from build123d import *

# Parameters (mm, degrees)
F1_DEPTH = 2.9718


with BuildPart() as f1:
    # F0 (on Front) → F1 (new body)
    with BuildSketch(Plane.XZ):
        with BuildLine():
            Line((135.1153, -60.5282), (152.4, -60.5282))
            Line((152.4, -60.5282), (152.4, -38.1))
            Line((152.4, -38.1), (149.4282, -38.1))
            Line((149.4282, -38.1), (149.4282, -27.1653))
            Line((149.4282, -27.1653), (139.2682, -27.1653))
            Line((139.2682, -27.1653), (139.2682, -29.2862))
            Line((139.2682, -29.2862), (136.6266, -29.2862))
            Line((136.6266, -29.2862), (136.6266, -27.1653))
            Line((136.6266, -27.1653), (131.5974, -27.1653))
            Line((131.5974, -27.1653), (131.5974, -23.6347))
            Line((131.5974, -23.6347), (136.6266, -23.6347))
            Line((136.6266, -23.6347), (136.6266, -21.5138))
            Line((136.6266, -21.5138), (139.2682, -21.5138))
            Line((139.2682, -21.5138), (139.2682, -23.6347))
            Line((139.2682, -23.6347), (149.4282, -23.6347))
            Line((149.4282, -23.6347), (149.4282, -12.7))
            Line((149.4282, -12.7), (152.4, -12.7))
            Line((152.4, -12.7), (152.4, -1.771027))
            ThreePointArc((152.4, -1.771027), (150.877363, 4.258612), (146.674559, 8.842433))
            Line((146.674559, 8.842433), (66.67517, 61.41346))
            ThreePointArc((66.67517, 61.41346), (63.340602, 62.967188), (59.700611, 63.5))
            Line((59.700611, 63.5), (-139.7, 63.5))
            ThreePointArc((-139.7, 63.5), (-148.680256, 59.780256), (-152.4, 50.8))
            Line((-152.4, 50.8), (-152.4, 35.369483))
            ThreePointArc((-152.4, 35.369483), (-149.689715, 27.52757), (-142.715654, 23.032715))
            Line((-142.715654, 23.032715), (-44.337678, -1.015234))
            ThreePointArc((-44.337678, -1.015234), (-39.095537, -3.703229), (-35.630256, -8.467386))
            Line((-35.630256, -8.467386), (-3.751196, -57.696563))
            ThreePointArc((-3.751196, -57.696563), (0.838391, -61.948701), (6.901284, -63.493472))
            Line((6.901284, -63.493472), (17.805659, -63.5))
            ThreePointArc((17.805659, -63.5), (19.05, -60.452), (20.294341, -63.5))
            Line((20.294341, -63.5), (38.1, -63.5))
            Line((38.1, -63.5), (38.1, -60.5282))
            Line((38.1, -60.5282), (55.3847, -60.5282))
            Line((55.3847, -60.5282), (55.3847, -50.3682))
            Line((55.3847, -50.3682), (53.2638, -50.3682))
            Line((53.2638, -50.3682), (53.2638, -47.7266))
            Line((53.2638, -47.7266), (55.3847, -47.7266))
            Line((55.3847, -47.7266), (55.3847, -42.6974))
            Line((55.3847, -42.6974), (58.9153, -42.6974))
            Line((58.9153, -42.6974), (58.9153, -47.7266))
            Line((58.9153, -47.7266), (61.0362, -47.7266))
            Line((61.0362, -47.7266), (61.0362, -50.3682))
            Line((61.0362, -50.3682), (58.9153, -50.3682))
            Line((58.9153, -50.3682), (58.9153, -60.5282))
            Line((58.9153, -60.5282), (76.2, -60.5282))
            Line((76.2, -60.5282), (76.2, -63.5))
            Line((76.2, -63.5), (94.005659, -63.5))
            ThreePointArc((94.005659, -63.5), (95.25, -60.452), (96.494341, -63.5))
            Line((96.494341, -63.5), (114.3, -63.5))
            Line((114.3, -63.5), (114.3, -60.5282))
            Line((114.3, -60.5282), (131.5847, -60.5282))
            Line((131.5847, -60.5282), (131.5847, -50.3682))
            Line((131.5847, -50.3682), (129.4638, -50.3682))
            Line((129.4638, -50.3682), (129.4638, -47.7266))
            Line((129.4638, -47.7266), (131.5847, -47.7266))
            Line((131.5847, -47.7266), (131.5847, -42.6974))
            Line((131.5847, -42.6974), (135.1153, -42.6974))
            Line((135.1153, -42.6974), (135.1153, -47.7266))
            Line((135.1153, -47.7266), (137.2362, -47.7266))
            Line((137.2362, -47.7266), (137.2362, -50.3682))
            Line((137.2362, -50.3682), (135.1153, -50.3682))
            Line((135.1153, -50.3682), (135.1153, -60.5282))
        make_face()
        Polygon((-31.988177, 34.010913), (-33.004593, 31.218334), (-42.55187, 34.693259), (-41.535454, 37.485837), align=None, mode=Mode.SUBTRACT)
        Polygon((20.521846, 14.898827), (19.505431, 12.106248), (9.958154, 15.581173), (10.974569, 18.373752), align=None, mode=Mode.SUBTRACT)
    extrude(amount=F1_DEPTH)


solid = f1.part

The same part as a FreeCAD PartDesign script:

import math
import FreeCAD as App
import Part
import Sketcher
from FreeCAD import Vector
Q = App.Units.Quantity


def add_polygon(sketch, points):
    """Adds a closed chain of lines whose ends are joined by coincident constraints."""
    first, n = sketch.GeometryCount, len(points)
    for a, b in zip(points, points[1:] + points[:1]):
        sketch.addGeometry(Part.LineSegment(App.Vector(*a, 0), App.Vector(*b, 0)), False)
    for i in range(n):
        sketch.addConstraint(Sketcher.Constraint("Coincident", first + i, 2, first + (i + 1) % n, 1))

doc = App.newDocument("Part")
body = doc.addObject("PartDesign::Body", "Body")

# Sketch on XZ plane
sketch1 = body.newObject("Sketcher::SketchObject", "Sketch")
sketch1.AttachmentSupport = (doc.getObject("XZ_Plane"), [""])
sketch1.MapMode = "FlatFace"
sketch1.addGeometry(Part.LineSegment(Vector(135.1153, -60.5282, 0), Vector(152.4, -60.5282, 0)), False)  # 0
sketch1.addGeometry(Part.LineSegment(Vector(152.4, -60.5282, 0), Vector(152.4, -38.1, 0)), False)  # 1
sketch1.addGeometry(Part.LineSegment(Vector(152.4, -38.1, 0), Vector(149.4282, -38.1, 0)), False)  # 2
sketch1.addGeometry(Part.LineSegment(Vector(149.4282, -38.1, 0), Vector(149.4282, -27.1653, 0)), False)  # 3
sketch1.addGeometry(Part.LineSegment(Vector(149.4282, -27.1653, 0), Vector(139.2682, -27.1653, 0)), False)  # 4
sketch1.addGeometry(Part.LineSegment(Vector(139.2682, -27.1653, 0), Vector(139.2682, -29.2862, 0)), False)  # 5
sketch1.addGeometry(Part.LineSegment(Vector(139.2682, -29.2862, 0), Vector(136.6266, -29.2862, 0)), False)  # 6
sketch1.addGeometry(Part.LineSegment(Vector(136.6266, -29.2862, 0), Vector(136.6266, -27.1653, 0)), False)  # 7
sketch1.addGeometry(Part.LineSegment(Vector(136.6266, -27.1653, 0), Vector(131.5974, -27.1653, 0)), False)  # 8
sketch1.addGeometry(Part.LineSegment(Vector(131.5974, -27.1653, 0), Vector(131.5974, -23.6347, 0)), False)  # 9
sketch1.addGeometry(Part.LineSegment(Vector(131.5974, -23.6347, 0), Vector(136.6266, -23.6347, 0)), False)  # 10
sketch1.addGeometry(Part.LineSegment(Vector(136.6266, -23.6347, 0), Vector(136.6266, -21.5138, 0)), False)  # 11
sketch1.addGeometry(Part.LineSegment(Vector(136.6266, -21.5138, 0), Vector(139.2682, -21.5138, 0)), False)  # 12
sketch1.addGeometry(Part.LineSegment(Vector(139.2682, -21.5138, 0), Vector(139.2682, -23.6347, 0)), False)  # 13
sketch1.addGeometry(Part.LineSegment(Vector(139.2682, -23.6347, 0), Vector(149.4282, -23.6347, 0)), False)  # 14
sketch1.addGeometry(Part.LineSegment(Vector(149.4282, -23.6347, 0), Vector(149.4282, -12.7, 0)), False)  # 15
sketch1.addGeometry(Part.LineSegment(Vector(149.4282, -12.7, 0), Vector(152.4, -12.7, 0)), False)  # 16
sketch1.addGeometry(Part.LineSegment(Vector(152.4, -12.7, 0), Vector(152.4, -1.771027, 0)), False)  # 17
sketch1.addGeometry(Part.ArcOfCircle(Part.Circle(Vector(139.699996, -1.771029, 0), Vector(0, 0, 1), 12.700004), math.radians(0.000008), math.radians(56.689361)), False)  # 18
sketch1.addGeometry(Part.LineSegment(Vector(146.674559, 8.842433, 0), Vector(66.67517, 61.41346, 0)), False)  # 19
sketch1.addGeometry(Part.ArcOfCircle(Part.Circle(Vector(59.70061, 50.799995, 0), Vector(0, 0, 1), 12.700005), math.radians(56.689379), math.radians(89.999996)), False)  # 20
sketch1.addGeometry(Part.LineSegment(Vector(59.700611, 63.5, 0), Vector(-139.7, 63.5, 0)), False)  # 21
sketch1.addGeometry(Part.ArcOfCircle(Part.Circle(Vector(-139.7, 50.8, 0), Vector(0, 0, 1), 12.7), math.radians(90.000002), math.radians(179.999998)), False)  # 22
sketch1.addGeometry(Part.LineSegment(Vector(-152.4, 50.8, 0), Vector(-152.4, 35.369483, 0)), False)  # 23
sketch1.addGeometry(Part.ArcOfCircle(Part.Circle(Vector(-139.699999, 35.369483, 0), Vector(0, 0, 1), 12.7), math.radians(179.999999), math.radians(256.263731)), False)  # 24
sketch1.addGeometry(Part.LineSegment(Vector(-142.715654, 23.032715, 0), Vector(-44.337678, -1.015234, 0)), False)  # 25
sketch1.addGeometry(Part.ArcOfCircle(Part.Circle(Vector(-47.353333, -13.352001, 0), Vector(0, 0, 1), 12.7), math.radians(22.619864), math.radians(76.263728)), False)  # 26
sketch1.addGeometry(Part.LineSegment(Vector(-35.630256, -8.467386, 0), Vector(-3.751196, -57.696563, 0)), False)  # 27
sketch1.addGeometry(Part.ArcOfCircle(Part.Circle(Vector(6.908886, -50.793475, 0), Vector(0, 0, 1), 12.699999), math.radians(-147.074351), math.radians(-90.034298)), False)  # 28
sketch1.addGeometry(Part.LineSegment(Vector(6.901284, -63.493472, 0), Vector(17.805659, -63.5, 0)), False)  # 29
sketch1.addGeometry(Part.ArcOfCircle(Part.Circle(Vector(19.05, -62.23, 0), Vector(0, 0, 1), 1.778), math.radians(-45.584685), math.radians(225.584685)), False)  # 30
sketch1.addGeometry(Part.LineSegment(Vector(20.294341, -63.5, 0), Vector(38.1, -63.5, 0)), False)  # 31
sketch1.addGeometry(Part.LineSegment(Vector(38.1, -63.5, 0), Vector(38.1, -60.5282, 0)), False)  # 32
sketch1.addGeometry(Part.LineSegment(Vector(38.1, -60.5282, 0), Vector(55.3847, -60.5282, 0)), False)  # 33
sketch1.addGeometry(Part.LineSegment(Vector(55.3847, -60.5282, 0), Vector(55.3847, -50.3682, 0)), False)  # 34
sketch1.addGeometry(Part.LineSegment(Vector(55.3847, -50.3682, 0), Vector(53.2638, -50.3682, 0)), False)  # 35
sketch1.addGeometry(Part.LineSegment(Vector(53.2638, -50.3682, 0), Vector(53.2638, -47.7266, 0)), False)  # 36
sketch1.addGeometry(Part.LineSegment(Vector(53.2638, -47.7266, 0), Vector(55.3847, -47.7266, 0)), False)  # 37
sketch1.addGeometry(Part.LineSegment(Vector(55.3847, -47.7266, 0), Vector(55.3847, -42.6974, 0)), False)  # 38
sketch1.addGeometry(Part.LineSegment(Vector(55.3847, -42.6974, 0), Vector(58.9153, -42.6974, 0)), False)  # 39
sketch1.addGeometry(Part.LineSegment(Vector(58.9153, -42.6974, 0), Vector(58.9153, -47.7266, 0)), False)  # 40
sketch1.addGeometry(Part.LineSegment(Vector(58.9153, -47.7266, 0), Vector(61.0362, -47.7266, 0)), False)  # 41
sketch1.addGeometry(Part.LineSegment(Vector(61.0362, -47.7266, 0), Vector(61.0362, -50.3682, 0)), False)  # 42
sketch1.addGeometry(Part.LineSegment(Vector(61.0362, -50.3682, 0), Vector(58.9153, -50.3682, 0)), False)  # 43
sketch1.addGeometry(Part.LineSegment(Vector(58.9153, -50.3682, 0), Vector(58.9153, -60.5282, 0)), False)  # 44
sketch1.addGeometry(Part.LineSegment(Vector(58.9153, -60.5282, 0), Vector(76.2, -60.5282, 0)), False)  # 45
sketch1.addGeometry(Part.LineSegment(Vector(76.2, -60.5282, 0), Vector(76.2, -63.5, 0)), False)  # 46
sketch1.addGeometry(Part.LineSegment(Vector(76.2, -63.5, 0), Vector(94.005659, -63.5, 0)), False)  # 47
sketch1.addGeometry(Part.ArcOfCircle(Part.Circle(Vector(95.25, -62.23, 0), Vector(0, 0, 1), 1.778), math.radians(-45.584685), math.radians(225.584685)), False)  # 48
sketch1.addGeometry(Part.LineSegment(Vector(96.494341, -63.5, 0), Vector(114.3, -63.5, 0)), False)  # 49
sketch1.addGeometry(Part.LineSegment(Vector(114.3, -63.5, 0), Vector(114.3, -60.5282, 0)), False)  # 50
sketch1.addGeometry(Part.LineSegment(Vector(114.3, -60.5282, 0), Vector(131.5847, -60.5282, 0)), False)  # 51
sketch1.addGeometry(Part.LineSegment(Vector(131.5847, -60.5282, 0), Vector(131.5847, -50.3682, 0)), False)  # 52
sketch1.addGeometry(Part.LineSegment(Vector(131.5847, -50.3682, 0), Vector(129.4638, -50.3682, 0)), False)  # 53
sketch1.addGeometry(Part.LineSegment(Vector(129.4638, -50.3682, 0), Vector(129.4638, -47.7266, 0)), False)  # 54
sketch1.addGeometry(Part.LineSegment(Vector(129.4638, -47.7266, 0), Vector(131.5847, -47.7266, 0)), False)  # 55
sketch1.addGeometry(Part.LineSegment(Vector(131.5847, -47.7266, 0), Vector(131.5847, -42.6974, 0)), False)  # 56
sketch1.addGeometry(Part.LineSegment(Vector(131.5847, -42.6974, 0), Vector(135.1153, -42.6974, 0)), False)  # 57
sketch1.addGeometry(Part.LineSegment(Vector(135.1153, -42.6974, 0), Vector(135.1153, -47.7266, 0)), False)  # 58
sketch1.addGeometry(Part.LineSegment(Vector(135.1153, -47.7266, 0), Vector(137.2362, -47.7266, 0)), False)  # 59
sketch1.addGeometry(Part.LineSegment(Vector(137.2362, -47.7266, 0), Vector(137.2362, -50.3682, 0)), False)  # 60
sketch1.addGeometry(Part.LineSegment(Vector(137.2362, -50.3682, 0), Vector(135.1153, -50.3682, 0)), False)  # 61
sketch1.addGeometry(Part.LineSegment(Vector(135.1153, -50.3682, 0), Vector(135.1153, -60.5282, 0)), False)  # 62
add_polygon(sketch1, [(10.974569, 18.373752), (20.521846, 14.898827), (19.505431, 12.106248), (9.958154, 15.581173)])  # lines 63-66
add_polygon(sketch1, [(-41.535454, 37.485837), (-31.988177, 34.010913), (-33.004593, 31.218334), (-42.55187, 34.693259)])  # lines 67-70
sketch1.addConstraint([
    Sketcher.Constraint("Coincident", 0, 2, 1, 1),
    Sketcher.Constraint("Coincident", 1, 2, 2, 1),
    Sketcher.Constraint("Coincident", 2, 2, 3, 1),
    Sketcher.Constraint("Coincident", 3, 2, 4, 1),
    Sketcher.Constraint("Coincident", 4, 2, 5, 1),
    Sketcher.Constraint("Coincident", 5, 2, 6, 1),
    Sketcher.Constraint("Coincident", 6, 2, 7, 1),
    Sketcher.Constraint("Coincident", 7, 2, 8, 1),
    Sketcher.Constraint("Coincident", 8, 2, 9, 1),
    Sketcher.Constraint("Coincident", 9, 2, 10, 1),
    Sketcher.Constraint("Coincident", 10, 2, 11, 1),
    Sketcher.Constraint("Coincident", 11, 2, 12, 1),
    Sketcher.Constraint("Coincident", 12, 2, 13, 1),
    Sketcher.Constraint("Coincident", 13, 2, 14, 1),
    Sketcher.Constraint("Coincident", 14, 2, 15, 1),
    Sketcher.Constraint("Coincident", 15, 2, 16, 1),
    Sketcher.Constraint("Coincident", 16, 2, 17, 1),
    Sketcher.Constraint("Coincident", 17, 2, 18, 1),
    Sketcher.Constraint("Coincident", 18, 2, 19, 1),
    Sketcher.Constraint("Coincident", 19, 2, 20, 1),
    Sketcher.Constraint("Coincident", 20, 2, 21, 1),
    Sketcher.Constraint("Coincident", 21, 2, 22, 1),
    Sketcher.Constraint("Coincident", 22, 2, 23, 1),
    Sketcher.Constraint("Coincident", 23, 2, 24, 1),
    Sketcher.Constraint("Coincident", 24, 2, 25, 1),
    Sketcher.Constraint("Coincident", 25, 2, 26, 2),
    Sketcher.Constraint("Coincident", 26, 1, 27, 1),
    Sketcher.Constraint("Coincident", 27, 2, 28, 1),
    Sketcher.Constraint("Coincident", 28, 2, 29, 1),
    Sketcher.Constraint("Coincident", 29, 2, 30, 2),
    Sketcher.Constraint("Coincident", 30, 1, 31, 1),
    Sketcher.Constraint("Coincident", 31, 2, 32, 1),
    Sketcher.Constraint("Coincident", 32, 2, 33, 1),
    Sketcher.Constraint("Coincident", 33, 2, 34, 1),
    Sketcher.Constraint("Coincident", 34, 2, 35, 1),
    Sketcher.Constraint("Coincident", 35, 2, 36, 1),
    Sketcher.Constraint("Coincident", 36, 2, 37, 1),
    Sketcher.Constraint("Coincident", 37, 2, 38, 1),
    Sketcher.Constraint("Coincident", 38, 2, 39, 1),
    Sketcher.Constraint("Coincident", 39, 2, 40, 1),
    Sketcher.Constraint("Coincident", 40, 2, 41, 1),
    Sketcher.Constraint("Coincident", 41, 2, 42, 1),
    Sketcher.Constraint("Coincident", 42, 2, 43, 1),
    Sketcher.Constraint("Coincident", 43, 2, 44, 1),
    Sketcher.Constraint("Coincident", 44, 2, 45, 1),
    Sketcher.Constraint("Coincident", 45, 2, 46, 1),
    Sketcher.Constraint("Coincident", 46, 2, 47, 1),
    Sketcher.Constraint("Coincident", 47, 2, 48, 2),
    Sketcher.Constraint("Coincident", 48, 1, 49, 1),
    Sketcher.Constraint("Coincident", 49, 2, 50, 1),
    Sketcher.Constraint("Coincident", 50, 2, 51, 1),
    Sketcher.Constraint("Coincident", 51, 2, 52, 1),
    Sketcher.Constraint("Coincident", 52, 2, 53, 1),
    Sketcher.Constraint("Coincident", 53, 2, 54, 1),
    Sketcher.Constraint("Coincident", 54, 2, 55, 1),
    Sketcher.Constraint("Coincident", 55, 2, 56, 1),
    Sketcher.Constraint("Coincident", 56, 2, 57, 1),
    Sketcher.Constraint("Coincident", 57, 2, 58, 1),
    Sketcher.Constraint("Coincident", 58, 2, 59, 1),
    Sketcher.Constraint("Coincident", 59, 2, 60, 1),
    Sketcher.Constraint("Coincident", 60, 2, 61, 1),
    Sketcher.Constraint("Coincident", 61, 2, 62, 1),
    Sketcher.Constraint("Coincident", 62, 2, 0, 1),
    Sketcher.Constraint("Horizontal", 0),
    Sketcher.Constraint("Vertical", 1),
    Sketcher.Constraint("Horizontal", 2),
    Sketcher.Constraint("Vertical", 3),
    Sketcher.Constraint("Horizontal", 4),
    Sketcher.Constraint("Vertical", 5),
    Sketcher.Constraint("Horizontal", 6),
    Sketcher.Constraint("Vertical", 7),
    Sketcher.Constraint("Horizontal", 8),
    Sketcher.Constraint("Vertical", 9),
    Sketcher.Constraint("Horizontal", 10),
    Sketcher.Constraint("Vertical", 11),
    Sketcher.Constraint("Horizontal", 12),
    Sketcher.Constraint("Vertical", 13),
    Sketcher.Constraint("Horizontal", 14),
    Sketcher.Constraint("Vertical", 15),
    Sketcher.Constraint("Horizontal", 16),
    Sketcher.Constraint("Vertical", 17),
    Sketcher.Constraint("Horizontal", 21),
    Sketcher.Constraint("Vertical", 23),
    Sketcher.Constraint("Horizontal", 31),
    Sketcher.Constraint("Vertical", 32),
    Sketcher.Constraint("Horizontal", 33),
    Sketcher.Constraint("Vertical", 34),
    Sketcher.Constraint("Horizontal", 35),
    Sketcher.Constraint("Vertical", 36),
    Sketcher.Constraint("Horizontal", 37),
    Sketcher.Constraint("Vertical", 38),
    Sketcher.Constraint("Horizontal", 39),
    Sketcher.Constraint("Vertical", 40),
    Sketcher.Constraint("Horizontal", 41),
    Sketcher.Constraint("Vertical", 42),
    Sketcher.Constraint("Horizontal", 43),
    Sketcher.Constraint("Vertical", 44),
    Sketcher.Constraint("Horizontal", 45),
    Sketcher.Constraint("Vertical", 46),
    Sketcher.Constraint("Horizontal", 47),
    Sketcher.Constraint("Horizontal", 49),
    Sketcher.Constraint("Vertical", 50),
    Sketcher.Constraint("Horizontal", 51),
    Sketcher.Constraint("Vertical", 52),
    Sketcher.Constraint("Horizontal", 53),
    Sketcher.Constraint("Vertical", 54),
    Sketcher.Constraint("Horizontal", 55),
    Sketcher.Constraint("Vertical", 56),
    Sketcher.Constraint("Horizontal", 57),
    Sketcher.Constraint("Vertical", 58),
    Sketcher.Constraint("Horizontal", 59),
    Sketcher.Constraint("Vertical", 60),
    Sketcher.Constraint("Horizontal", 61),
    Sketcher.Constraint("Vertical", 62),
    Sketcher.Constraint("Radius", 18, Q("0.5000002 in")),
    Sketcher.Constraint("Radius", 20, Q("0.5000002 in")),
    Sketcher.Constraint("Radius", 22, Q("0.5 in")),
    Sketcher.Constraint("Radius", 24, Q("0.5 in")),
    Sketcher.Constraint("Radius", 26, Q("0.5 in")),
    Sketcher.Constraint("Radius", 28, Q("0.5 in")),
    Sketcher.Constraint("Radius", 30, Q("0.07 in")),
    Sketcher.Constraint("Radius", 48, Q("0.07 in")),
    Sketcher.Constraint("DistanceX", 4, 2, 4, 1, Q("0.4 in")),
    Sketcher.Constraint("DistanceX", 14, 1, 14, 2, Q("0.4 in")),
    Sketcher.Constraint("DistanceY", 34, 1, 34, 2, Q("0.4 in")),
    Sketcher.Constraint("DistanceY", 44, 2, 44, 1, Q("0.4 in")),
    Sketcher.Constraint("DistanceY", 52, 1, 52, 2, Q("0.4 in")),
    Sketcher.Constraint("DistanceY", 62, 2, 62, 1, Q("0.4 in")),
    Sketcher.Constraint("DistanceY", -1, 1, 20, 3, Q("1.9999998 in")),
    Sketcher.Constraint("DistanceX", -1, 1, 0, 2, Q("6 in")),
    Sketcher.Constraint("DistanceX", -1, 1, 16, 2, Q("6 in")),
    Sketcher.Constraint("DistanceX", 22, 2, -1, 1, Q("6 in")),
    Sketcher.Constraint("DistanceY", -1, 1, 22, 2, Q("2 in")),
    Sketcher.Constraint("DistanceX", -1, 1, 45, 2, Q("3 in")),
    Sketcher.Constraint("Distance", 63, Q("0.4 in")),
    Sketcher.Constraint("Distance", 65, Q("0.4 in")),
    Sketcher.Constraint("Distance", 67, Q("0.4 in")),
    Sketcher.Constraint("Distance", 69, Q("0.4 in")),
    Sketcher.Constraint("DistanceY", 1, 2, -1, 1, Q("1.5 in")),
    Sketcher.Constraint("DistanceY", 15, 2, -1, 1, Q("0.5 in")),
    Sketcher.Constraint("DistanceX", 21, 2, -1, 1, Q("5.5 in")),
    Sketcher.Constraint("DistanceY", 29, 2, -1, 1, Q("2.5 in")),
    Sketcher.Constraint("DistanceY", 30, 1, -1, 1, Q("2.5 in")),
    Sketcher.Constraint("DistanceX", -1, 1, 31, 2, Q("1.5 in")),
    Sketcher.Constraint("DistanceY", 46, 2, -1, 1, Q("2.5 in")),
    Sketcher.Constraint("DistanceY", 48, 1, -1, 1, Q("2.5 in")),
    Sketcher.Constraint("DistanceX", -1, 1, 49, 2, Q("4.5 in")),
    Sketcher.Constraint("DistanceX", 2, 2, 2, 1, Q("0.117 in")),
    Sketcher.Constraint("DistanceX", 6, 2, 6, 1, Q("0.104 in")),
    Sketcher.Constraint("DistanceX", 8, 2, 8, 1, Q("0.198 in")),
    Sketcher.Constraint("DistanceX", 10, 1, 10, 2, Q("0.198 in")),
    Sketcher.Constraint("DistanceX", 12, 1, 12, 2, Q("0.104 in")),
    Sketcher.Constraint("DistanceX", 39, 1, 39, 2, Q("0.139 in")),
    Sketcher.Constraint("DistanceX", 57, 1, 57, 2, Q("0.139 in")),
    Sketcher.Constraint("DistanceY", 1, 1, 1, 2, Q("0.883 in")),
    Sketcher.Constraint("DistanceY", 9, 1, 9, 2, Q("0.139 in")),
    Sketcher.Constraint("DistanceY", 32, 1, 32, 2, Q("0.117 in")),
    Sketcher.Constraint("DistanceY", 36, 1, 36, 2, Q("0.104 in")),
    Sketcher.Constraint("DistanceY", 38, 1, 38, 2, Q("0.198 in")),
    Sketcher.Constraint("DistanceY", 40, 2, 40, 1, Q("0.198 in")),
    Sketcher.Constraint("DistanceY", 42, 2, 42, 1, Q("0.104 in")),
    Sketcher.Constraint("DistanceY", 50, 1, 50, 2, Q("0.117 in")),
    Sketcher.Constraint("DistanceY", 54, 1, 54, 2, Q("0.104 in")),
    Sketcher.Constraint("DistanceY", 56, 1, 56, 2, Q("0.198 in")),
    Sketcher.Constraint("DistanceY", 58, 2, 58, 1, Q("0.198 in")),
    Sketcher.Constraint("DistanceX", -1, 1, 30, 3, Q("0.75 in")),
    Sketcher.Constraint("DistanceY", 30, 3, -1, 1, Q("2.45 in")),
    Sketcher.Constraint("DistanceX", -1, 1, 48, 3, Q("3.75 in")),
    Sketcher.Constraint("DistanceY", 48, 3, -1, 1, Q("2.45 in")),
    Sketcher.Constraint("Distance", 64, Q("0.117 in")),
    Sketcher.Constraint("Distance", 66, Q("0.117 in")),
    Sketcher.Constraint("Distance", 68, Q("0.117 in")),
    Sketcher.Constraint("Distance", 70, Q("0.117 in")),
    Sketcher.Constraint("DistanceX", 0, 1, 0, 2, Q("0.6805 in")),
    Sketcher.Constraint("DistanceX", 33, 1, 33, 2, Q("0.6805 in")),
    Sketcher.Constraint("DistanceX", 35, 2, 35, 1, Q("0.0835 in")),
    Sketcher.Constraint("DistanceX", 37, 1, 37, 2, Q("0.0835 in")),
    Sketcher.Constraint("DistanceX", 41, 1, 41, 2, Q("0.0835 in")),
    Sketcher.Constraint("DistanceX", 43, 2, 43, 1, Q("0.0835 in")),
    Sketcher.Constraint("DistanceX", 51, 1, 51, 2, Q("0.6805 in")),
    Sketcher.Constraint("DistanceX", 53, 2, 53, 1, Q("0.0835 in")),
    Sketcher.Constraint("DistanceX", 55, 1, 55, 2, Q("0.0835 in")),
    Sketcher.Constraint("DistanceX", 59, 1, 59, 2, Q("0.0835 in")),
    Sketcher.Constraint("DistanceY", 3, 1, 3, 2, Q("0.4305 in")),
    Sketcher.Constraint("DistanceY", 5, 2, 5, 1, Q("0.0835 in")),
    Sketcher.Constraint("DistanceY", 7, 1, 7, 2, Q("0.0835 in")),
    Sketcher.Constraint("DistanceY", 11, 1, 11, 2, Q("0.0835 in")),
    Sketcher.Constraint("DistanceY", 13, 2, 13, 1, Q("0.0835 in")),
    Sketcher.Constraint("DistanceY", -1, 1, 24, 2, Q("0.9067998 in")),
    Sketcher.Constraint("DistanceX", 21, 2, 21, 1, Q("199.400611 mm")),
    Sketcher.Constraint("DistanceY", 26, 3, -1, 1, Q("13.352001 mm")),
    Sketcher.Constraint("Distance", 27, Q("58.649692 mm")),
    Sketcher.Constraint("DistanceY", 17, 1, 17, 2, Q("10.928973 mm")),
    Sketcher.Constraint("DistanceY", 23, 2, 23, 1, Q("15.430517 mm")),
    Sketcher.Constraint("DistanceY", 18, 3, -1, 1, Q("1.771029 mm")),
    Sketcher.Constraint("DistanceX", -1, 1, 20, 3, Q("59.70061 mm")),
    Sketcher.Constraint("DistanceX", -1, 1, 18, 2, Q("146.674559 mm")),
    Sketcher.Constraint("DistanceX", -1, 1, 19, 2, Q("66.67517 mm")),
    Sketcher.Constraint("DistanceX", -1, 1, 64, 2, Q("19.505431 mm")),
    Sketcher.Constraint("DistanceY", -1, 1, 64, 2, Q("12.106248 mm")),
    Sketcher.Constraint("DistanceX", -1, 1, 66, 2, Q("10.974569 mm")),
    Sketcher.Constraint("DistanceY", -1, 1, 66, 2, Q("18.373752 mm")),
    Sketcher.Constraint("DistanceX", 69, 2, -1, 1, Q("42.55187 mm")),
    Sketcher.Constraint("DistanceY", -1, 1, 69, 2, Q("34.693259 mm")),
    Sketcher.Constraint("Distance", 25, Q("101.274528 mm")),
    Sketcher.Constraint("Distance", 29, Q("10.904377 mm")),
    Sketcher.Constraint("DistanceY", -1, 1, 24, 3, Q("35.369483 mm")),
    Sketcher.Constraint("DistanceX", 26, 3, -1, 1, Q("47.353333 mm")),
    Sketcher.Constraint("DistanceX", -1, 1, 28, 3, Q("6.908886 mm")),
    Sketcher.Constraint("DistanceY", 28, 3, -1, 1, Q("50.793475 mm")),
    Sketcher.Constraint("DistanceX", 26, 1, -1, 1, Q("35.630256 mm")),
    Sketcher.Constraint("DistanceX", 67, 2, -1, 1, Q("31.988177 mm")),
    Sketcher.Constraint("DistanceY", -1, 1, 67, 2, Q("34.010913 mm")),
])
pad1 = body.newObject("PartDesign::Pad", "Pad")
pad1.Profile = sketch1
pad1.Length = Q("0.117 in")

doc.recompute()
